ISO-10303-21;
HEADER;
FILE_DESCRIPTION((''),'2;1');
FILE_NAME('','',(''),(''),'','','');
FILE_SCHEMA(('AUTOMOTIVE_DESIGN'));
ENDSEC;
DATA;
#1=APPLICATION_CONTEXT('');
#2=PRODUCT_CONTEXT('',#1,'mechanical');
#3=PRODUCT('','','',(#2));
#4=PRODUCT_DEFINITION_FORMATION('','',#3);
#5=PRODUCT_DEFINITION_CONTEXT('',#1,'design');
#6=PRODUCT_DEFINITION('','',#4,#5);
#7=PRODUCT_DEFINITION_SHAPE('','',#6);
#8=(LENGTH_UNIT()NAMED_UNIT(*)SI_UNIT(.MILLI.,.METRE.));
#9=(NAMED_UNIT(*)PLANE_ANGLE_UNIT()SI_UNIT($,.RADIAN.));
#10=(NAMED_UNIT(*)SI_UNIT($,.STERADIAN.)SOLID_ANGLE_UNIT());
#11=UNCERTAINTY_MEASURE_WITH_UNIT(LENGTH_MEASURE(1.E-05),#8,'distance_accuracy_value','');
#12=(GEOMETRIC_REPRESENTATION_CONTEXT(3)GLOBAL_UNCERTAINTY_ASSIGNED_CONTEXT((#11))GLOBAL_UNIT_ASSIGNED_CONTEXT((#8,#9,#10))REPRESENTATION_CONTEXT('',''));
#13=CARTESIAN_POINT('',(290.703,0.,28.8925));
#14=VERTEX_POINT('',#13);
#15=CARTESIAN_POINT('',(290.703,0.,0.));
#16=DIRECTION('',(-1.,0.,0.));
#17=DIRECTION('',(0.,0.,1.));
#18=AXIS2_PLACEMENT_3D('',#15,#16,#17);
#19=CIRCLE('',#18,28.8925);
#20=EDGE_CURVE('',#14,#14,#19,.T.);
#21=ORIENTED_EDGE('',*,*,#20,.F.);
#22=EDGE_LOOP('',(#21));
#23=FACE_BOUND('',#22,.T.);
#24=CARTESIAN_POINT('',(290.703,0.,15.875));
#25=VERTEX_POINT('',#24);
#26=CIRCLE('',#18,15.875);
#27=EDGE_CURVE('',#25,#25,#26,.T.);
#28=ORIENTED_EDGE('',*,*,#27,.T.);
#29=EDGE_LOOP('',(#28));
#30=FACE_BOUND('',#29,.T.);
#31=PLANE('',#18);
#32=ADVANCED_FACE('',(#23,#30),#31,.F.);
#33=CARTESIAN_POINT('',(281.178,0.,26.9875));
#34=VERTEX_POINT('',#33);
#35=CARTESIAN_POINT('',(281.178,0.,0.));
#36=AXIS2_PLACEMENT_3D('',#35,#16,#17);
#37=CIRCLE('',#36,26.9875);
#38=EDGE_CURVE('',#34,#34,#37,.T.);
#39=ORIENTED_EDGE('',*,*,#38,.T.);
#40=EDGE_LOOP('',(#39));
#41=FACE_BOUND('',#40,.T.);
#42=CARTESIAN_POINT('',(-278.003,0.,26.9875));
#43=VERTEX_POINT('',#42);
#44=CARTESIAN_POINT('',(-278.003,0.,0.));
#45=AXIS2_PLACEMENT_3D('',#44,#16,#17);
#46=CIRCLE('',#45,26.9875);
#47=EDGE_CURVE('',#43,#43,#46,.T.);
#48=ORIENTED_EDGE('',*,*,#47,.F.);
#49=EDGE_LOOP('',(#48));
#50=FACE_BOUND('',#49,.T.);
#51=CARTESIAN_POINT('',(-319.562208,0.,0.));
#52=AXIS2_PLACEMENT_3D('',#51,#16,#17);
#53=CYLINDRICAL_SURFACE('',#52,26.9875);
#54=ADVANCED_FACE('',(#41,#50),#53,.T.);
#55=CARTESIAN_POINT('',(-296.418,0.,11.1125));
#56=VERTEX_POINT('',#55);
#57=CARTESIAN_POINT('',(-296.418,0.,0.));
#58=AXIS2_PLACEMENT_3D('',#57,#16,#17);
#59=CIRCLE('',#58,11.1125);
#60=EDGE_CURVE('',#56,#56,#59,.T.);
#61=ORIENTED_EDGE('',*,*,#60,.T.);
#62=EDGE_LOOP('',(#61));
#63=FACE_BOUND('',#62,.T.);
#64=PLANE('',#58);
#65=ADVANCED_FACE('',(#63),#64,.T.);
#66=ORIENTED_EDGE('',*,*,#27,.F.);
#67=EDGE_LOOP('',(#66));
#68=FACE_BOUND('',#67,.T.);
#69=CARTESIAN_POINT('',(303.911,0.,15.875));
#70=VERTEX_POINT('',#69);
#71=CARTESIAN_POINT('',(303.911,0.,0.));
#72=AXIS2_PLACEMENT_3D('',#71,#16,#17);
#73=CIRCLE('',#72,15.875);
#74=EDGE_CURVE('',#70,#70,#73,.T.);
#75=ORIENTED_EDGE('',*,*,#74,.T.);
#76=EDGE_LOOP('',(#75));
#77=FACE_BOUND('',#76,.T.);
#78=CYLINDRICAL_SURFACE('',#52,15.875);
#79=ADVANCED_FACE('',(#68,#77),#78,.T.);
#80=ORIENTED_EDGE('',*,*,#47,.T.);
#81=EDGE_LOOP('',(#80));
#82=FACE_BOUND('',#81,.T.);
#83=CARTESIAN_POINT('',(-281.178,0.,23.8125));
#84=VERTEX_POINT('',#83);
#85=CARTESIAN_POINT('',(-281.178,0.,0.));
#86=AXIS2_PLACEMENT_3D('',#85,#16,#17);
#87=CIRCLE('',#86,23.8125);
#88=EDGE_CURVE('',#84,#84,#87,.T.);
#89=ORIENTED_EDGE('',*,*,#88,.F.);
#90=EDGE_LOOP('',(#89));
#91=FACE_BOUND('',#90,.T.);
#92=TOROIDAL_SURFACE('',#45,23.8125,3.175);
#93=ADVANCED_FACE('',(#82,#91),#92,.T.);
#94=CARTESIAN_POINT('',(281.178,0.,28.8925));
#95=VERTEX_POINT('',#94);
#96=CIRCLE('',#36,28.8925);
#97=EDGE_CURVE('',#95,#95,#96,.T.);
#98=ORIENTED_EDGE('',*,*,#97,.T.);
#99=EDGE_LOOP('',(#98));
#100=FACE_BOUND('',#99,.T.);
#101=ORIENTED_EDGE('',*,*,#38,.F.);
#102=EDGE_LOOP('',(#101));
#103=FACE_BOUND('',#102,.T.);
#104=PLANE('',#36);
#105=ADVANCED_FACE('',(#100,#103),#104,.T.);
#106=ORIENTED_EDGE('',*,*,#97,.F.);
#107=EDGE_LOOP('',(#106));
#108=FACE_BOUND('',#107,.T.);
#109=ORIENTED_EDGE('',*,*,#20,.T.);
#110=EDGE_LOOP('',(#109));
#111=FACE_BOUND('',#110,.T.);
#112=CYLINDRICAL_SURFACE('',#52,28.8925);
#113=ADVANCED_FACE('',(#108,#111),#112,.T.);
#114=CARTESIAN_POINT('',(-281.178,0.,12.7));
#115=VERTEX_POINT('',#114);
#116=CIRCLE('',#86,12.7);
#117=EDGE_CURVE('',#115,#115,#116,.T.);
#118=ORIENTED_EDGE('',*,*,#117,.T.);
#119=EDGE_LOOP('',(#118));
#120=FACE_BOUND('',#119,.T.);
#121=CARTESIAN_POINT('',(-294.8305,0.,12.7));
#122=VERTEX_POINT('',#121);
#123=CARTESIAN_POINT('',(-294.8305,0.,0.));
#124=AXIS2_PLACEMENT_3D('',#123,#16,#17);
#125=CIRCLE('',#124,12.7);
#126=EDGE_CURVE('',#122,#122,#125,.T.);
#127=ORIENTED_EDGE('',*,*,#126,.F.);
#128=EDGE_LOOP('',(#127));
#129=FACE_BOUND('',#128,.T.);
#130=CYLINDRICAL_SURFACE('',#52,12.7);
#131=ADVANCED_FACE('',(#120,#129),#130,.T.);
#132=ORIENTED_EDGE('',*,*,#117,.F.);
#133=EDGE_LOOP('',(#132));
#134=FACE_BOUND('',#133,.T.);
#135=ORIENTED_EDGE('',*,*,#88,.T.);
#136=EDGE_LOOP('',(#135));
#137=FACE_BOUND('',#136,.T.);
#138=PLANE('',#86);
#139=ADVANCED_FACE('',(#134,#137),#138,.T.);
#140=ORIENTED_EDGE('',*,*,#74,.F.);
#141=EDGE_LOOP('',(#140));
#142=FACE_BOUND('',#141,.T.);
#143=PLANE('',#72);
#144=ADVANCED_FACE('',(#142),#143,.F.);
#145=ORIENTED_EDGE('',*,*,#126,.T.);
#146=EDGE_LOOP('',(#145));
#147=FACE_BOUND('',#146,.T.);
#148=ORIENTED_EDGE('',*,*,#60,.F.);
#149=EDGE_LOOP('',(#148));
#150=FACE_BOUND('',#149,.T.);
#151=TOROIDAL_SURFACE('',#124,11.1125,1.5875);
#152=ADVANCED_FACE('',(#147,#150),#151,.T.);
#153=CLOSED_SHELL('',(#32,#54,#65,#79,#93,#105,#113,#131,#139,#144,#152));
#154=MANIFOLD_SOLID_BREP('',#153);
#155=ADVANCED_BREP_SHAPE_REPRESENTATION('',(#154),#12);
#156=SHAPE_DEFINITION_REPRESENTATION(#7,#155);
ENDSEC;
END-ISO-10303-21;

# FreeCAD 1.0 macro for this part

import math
import FreeCAD as App
import Part
import Sketcher
from FreeCAD import Vector
Q = App.Units.Quantity

doc = App.newDocument("Part")
body = doc.addObject("PartDesign::Body", "Body")

# Sketch on XZ plane
sketch1 = doc.addObject("Sketcher::SketchObject", "Sketch")
body.addObject(sketch1)
sketch1.AttachmentSupport = (doc.XZ_Plane, [""])
sketch1.MapMode = "FlatFace"
sketch1.addGeometry(Part.LineSegment(Vector(281.2, -27, 0), Vector(-278, -27, 0)), False)
sketch1.addGeometry(Part.ArcOfCircle(Part.Circle(Vector(-278, -23.8, 0), Vector(0, 0, 1), 3.2), math.radians(-180), math.radians(-90)), False)
sketch1.addGeometry(Part.LineSegment(Vector(-281.2, -23.8, 0), Vector(-281.2, -12.7, 0)), False)
sketch1.addGeometry(Part.LineSegment(Vector(-281.2, -12.7, 0), Vector(-294.8, -12.7, 0)), False)
sketch1.addGeometry(Part.ArcOfCircle(Part.Circle(Vector(-294.8, -11.1, 0), Vector(0, 0, 1), 1.6), math.radians(180), math.radians(270)), False)
sketch1.addGeometry(Part.LineSegment(Vector(-296.4, -11.1, 0), Vector(-296.4, 0, 0)), False)
sketch1.addGeometry(Part.LineSegment(Vector(-296.4, 0, 0), Vector(303.9, 0, 0)), False)
sketch1.addGeometry(Part.LineSegment(Vector(303.9, 0, 0), Vector(303.9, -15.9, 0)), False)
sketch1.addGeometry(Part.LineSegment(Vector(303.9, -15.9, 0), Vector(290.7, -15.9, 0)), False)
sketch1.addGeometry(Part.LineSegment(Vector(290.7, -15.9, 0), Vector(290.7, -28.9, 0)), False)
sketch1.addGeometry(Part.LineSegment(Vector(290.7, -28.9, 0), Vector(281.2, -28.9, 0)), False)
sketch1.addGeometry(Part.LineSegment(Vector(281.2, -28.9, 0), Vector(281.2, -27, 0)), False)
sketch1.addConstraint(Sketcher.Constraint("Tangent", 0, 2, 1, 2))
sketch1.addConstraint(Sketcher.Constraint("Tangent", 1, 1, 2, 1))
sketch1.addConstraint(Sketcher.Constraint("Coincident", 2, 2, 3, 1))
sketch1.addConstraint(Sketcher.Constraint("Tangent", 3, 2, 4, 2))
sketch1.addConstraint(Sketcher.Constraint("Tangent", 4, 1, 5, 1))
sketch1.addConstraint(Sketcher.Constraint("Coincident", 5, 2, 6, 1))
sketch1.addConstraint(Sketcher.Constraint("Coincident", 6, 2, 7, 1))
sketch1.addConstraint(Sketcher.Constraint("Coincident", 7, 2, 8, 1))
sketch1.addConstraint(Sketcher.Constraint("Coincident", 8, 2, 9, 1))
sketch1.addConstraint(Sketcher.Constraint("Coincident", 9, 2, 10, 1))
sketch1.addConstraint(Sketcher.Constraint("Coincident", 10, 2, 11, 1))
sketch1.addConstraint(Sketcher.Constraint("Coincident", 11, 2, 0, 1))
sketch1.addConstraint(Sketcher.Constraint("Horizontal", 0))
sketch1.addConstraint(Sketcher.Constraint("Vertical", 2))
sketch1.addConstraint(Sketcher.Constraint("Horizontal", 3))
sketch1.addConstraint(Sketcher.Constraint("Vertical", 5))
sketch1.addConstraint(Sketcher.Constraint("Horizontal", 6))
sketch1.addConstraint(Sketcher.Constraint("Vertical", 7))
sketch1.addConstraint(Sketcher.Constraint("Horizontal", 8))
sketch1.addConstraint(Sketcher.Constraint("Vertical", 9))
sketch1.addConstraint(Sketcher.Constraint("Horizontal", 10))
sketch1.addConstraint(Sketcher.Constraint("Vertical", 11))
sketch1.addConstraint(Sketcher.Constraint("PointOnObject", 5, 2, -1))
sketch1.addConstraint(Sketcher.Constraint("Equal", 2, 5))
sketch1.addConstraint(Sketcher.Constraint("Radius", 1, Q("0.125 in")))
sketch1.addConstraint(Sketcher.Constraint("Radius", 4, Q("0.0625 in")))
sketch1.addConstraint(Sketcher.Constraint("DistanceX", 8, 2, 8, 1, Q("0.52 in")))
sketch1.addConstraint(Sketcher.Constraint("DistanceY", 2, 2, -1, 1, Q("0.5 in")))
sketch1.addConstraint(Sketcher.Constraint("DistanceX", 4, 1, 2, 2, Q("0.6 in")))
sketch1.addConstraint(Sketcher.Constraint("DistanceY", 9, 2, 1, 3, Q("0.2 in")))
sketch1.addConstraint(Sketcher.Constraint("DistanceX", 0, 2, 0, 1, Q("22.015 in")))
sketch1.addConstraint(Sketcher.Constraint("DistanceX", 6, 1, 6, 2, Q("23.635 in")))
sketch1.addConstraint(Sketcher.Constraint("DistanceY", 7, 2, 7, 1, Q("0.625 in")))
sketch1.addConstraint(Sketcher.Constraint("DistanceX", 1, 1, -1, 1, Q("11.07 in")))
revolution = doc.addObject("PartDesign::Revolution", "Revolution")
body.addObject(revolution)
revolution.Profile = sketch1
revolution.ReferenceAxis = (sketch1, ["H_Axis"])
revolution.Angle = 360

doc.recompute()
